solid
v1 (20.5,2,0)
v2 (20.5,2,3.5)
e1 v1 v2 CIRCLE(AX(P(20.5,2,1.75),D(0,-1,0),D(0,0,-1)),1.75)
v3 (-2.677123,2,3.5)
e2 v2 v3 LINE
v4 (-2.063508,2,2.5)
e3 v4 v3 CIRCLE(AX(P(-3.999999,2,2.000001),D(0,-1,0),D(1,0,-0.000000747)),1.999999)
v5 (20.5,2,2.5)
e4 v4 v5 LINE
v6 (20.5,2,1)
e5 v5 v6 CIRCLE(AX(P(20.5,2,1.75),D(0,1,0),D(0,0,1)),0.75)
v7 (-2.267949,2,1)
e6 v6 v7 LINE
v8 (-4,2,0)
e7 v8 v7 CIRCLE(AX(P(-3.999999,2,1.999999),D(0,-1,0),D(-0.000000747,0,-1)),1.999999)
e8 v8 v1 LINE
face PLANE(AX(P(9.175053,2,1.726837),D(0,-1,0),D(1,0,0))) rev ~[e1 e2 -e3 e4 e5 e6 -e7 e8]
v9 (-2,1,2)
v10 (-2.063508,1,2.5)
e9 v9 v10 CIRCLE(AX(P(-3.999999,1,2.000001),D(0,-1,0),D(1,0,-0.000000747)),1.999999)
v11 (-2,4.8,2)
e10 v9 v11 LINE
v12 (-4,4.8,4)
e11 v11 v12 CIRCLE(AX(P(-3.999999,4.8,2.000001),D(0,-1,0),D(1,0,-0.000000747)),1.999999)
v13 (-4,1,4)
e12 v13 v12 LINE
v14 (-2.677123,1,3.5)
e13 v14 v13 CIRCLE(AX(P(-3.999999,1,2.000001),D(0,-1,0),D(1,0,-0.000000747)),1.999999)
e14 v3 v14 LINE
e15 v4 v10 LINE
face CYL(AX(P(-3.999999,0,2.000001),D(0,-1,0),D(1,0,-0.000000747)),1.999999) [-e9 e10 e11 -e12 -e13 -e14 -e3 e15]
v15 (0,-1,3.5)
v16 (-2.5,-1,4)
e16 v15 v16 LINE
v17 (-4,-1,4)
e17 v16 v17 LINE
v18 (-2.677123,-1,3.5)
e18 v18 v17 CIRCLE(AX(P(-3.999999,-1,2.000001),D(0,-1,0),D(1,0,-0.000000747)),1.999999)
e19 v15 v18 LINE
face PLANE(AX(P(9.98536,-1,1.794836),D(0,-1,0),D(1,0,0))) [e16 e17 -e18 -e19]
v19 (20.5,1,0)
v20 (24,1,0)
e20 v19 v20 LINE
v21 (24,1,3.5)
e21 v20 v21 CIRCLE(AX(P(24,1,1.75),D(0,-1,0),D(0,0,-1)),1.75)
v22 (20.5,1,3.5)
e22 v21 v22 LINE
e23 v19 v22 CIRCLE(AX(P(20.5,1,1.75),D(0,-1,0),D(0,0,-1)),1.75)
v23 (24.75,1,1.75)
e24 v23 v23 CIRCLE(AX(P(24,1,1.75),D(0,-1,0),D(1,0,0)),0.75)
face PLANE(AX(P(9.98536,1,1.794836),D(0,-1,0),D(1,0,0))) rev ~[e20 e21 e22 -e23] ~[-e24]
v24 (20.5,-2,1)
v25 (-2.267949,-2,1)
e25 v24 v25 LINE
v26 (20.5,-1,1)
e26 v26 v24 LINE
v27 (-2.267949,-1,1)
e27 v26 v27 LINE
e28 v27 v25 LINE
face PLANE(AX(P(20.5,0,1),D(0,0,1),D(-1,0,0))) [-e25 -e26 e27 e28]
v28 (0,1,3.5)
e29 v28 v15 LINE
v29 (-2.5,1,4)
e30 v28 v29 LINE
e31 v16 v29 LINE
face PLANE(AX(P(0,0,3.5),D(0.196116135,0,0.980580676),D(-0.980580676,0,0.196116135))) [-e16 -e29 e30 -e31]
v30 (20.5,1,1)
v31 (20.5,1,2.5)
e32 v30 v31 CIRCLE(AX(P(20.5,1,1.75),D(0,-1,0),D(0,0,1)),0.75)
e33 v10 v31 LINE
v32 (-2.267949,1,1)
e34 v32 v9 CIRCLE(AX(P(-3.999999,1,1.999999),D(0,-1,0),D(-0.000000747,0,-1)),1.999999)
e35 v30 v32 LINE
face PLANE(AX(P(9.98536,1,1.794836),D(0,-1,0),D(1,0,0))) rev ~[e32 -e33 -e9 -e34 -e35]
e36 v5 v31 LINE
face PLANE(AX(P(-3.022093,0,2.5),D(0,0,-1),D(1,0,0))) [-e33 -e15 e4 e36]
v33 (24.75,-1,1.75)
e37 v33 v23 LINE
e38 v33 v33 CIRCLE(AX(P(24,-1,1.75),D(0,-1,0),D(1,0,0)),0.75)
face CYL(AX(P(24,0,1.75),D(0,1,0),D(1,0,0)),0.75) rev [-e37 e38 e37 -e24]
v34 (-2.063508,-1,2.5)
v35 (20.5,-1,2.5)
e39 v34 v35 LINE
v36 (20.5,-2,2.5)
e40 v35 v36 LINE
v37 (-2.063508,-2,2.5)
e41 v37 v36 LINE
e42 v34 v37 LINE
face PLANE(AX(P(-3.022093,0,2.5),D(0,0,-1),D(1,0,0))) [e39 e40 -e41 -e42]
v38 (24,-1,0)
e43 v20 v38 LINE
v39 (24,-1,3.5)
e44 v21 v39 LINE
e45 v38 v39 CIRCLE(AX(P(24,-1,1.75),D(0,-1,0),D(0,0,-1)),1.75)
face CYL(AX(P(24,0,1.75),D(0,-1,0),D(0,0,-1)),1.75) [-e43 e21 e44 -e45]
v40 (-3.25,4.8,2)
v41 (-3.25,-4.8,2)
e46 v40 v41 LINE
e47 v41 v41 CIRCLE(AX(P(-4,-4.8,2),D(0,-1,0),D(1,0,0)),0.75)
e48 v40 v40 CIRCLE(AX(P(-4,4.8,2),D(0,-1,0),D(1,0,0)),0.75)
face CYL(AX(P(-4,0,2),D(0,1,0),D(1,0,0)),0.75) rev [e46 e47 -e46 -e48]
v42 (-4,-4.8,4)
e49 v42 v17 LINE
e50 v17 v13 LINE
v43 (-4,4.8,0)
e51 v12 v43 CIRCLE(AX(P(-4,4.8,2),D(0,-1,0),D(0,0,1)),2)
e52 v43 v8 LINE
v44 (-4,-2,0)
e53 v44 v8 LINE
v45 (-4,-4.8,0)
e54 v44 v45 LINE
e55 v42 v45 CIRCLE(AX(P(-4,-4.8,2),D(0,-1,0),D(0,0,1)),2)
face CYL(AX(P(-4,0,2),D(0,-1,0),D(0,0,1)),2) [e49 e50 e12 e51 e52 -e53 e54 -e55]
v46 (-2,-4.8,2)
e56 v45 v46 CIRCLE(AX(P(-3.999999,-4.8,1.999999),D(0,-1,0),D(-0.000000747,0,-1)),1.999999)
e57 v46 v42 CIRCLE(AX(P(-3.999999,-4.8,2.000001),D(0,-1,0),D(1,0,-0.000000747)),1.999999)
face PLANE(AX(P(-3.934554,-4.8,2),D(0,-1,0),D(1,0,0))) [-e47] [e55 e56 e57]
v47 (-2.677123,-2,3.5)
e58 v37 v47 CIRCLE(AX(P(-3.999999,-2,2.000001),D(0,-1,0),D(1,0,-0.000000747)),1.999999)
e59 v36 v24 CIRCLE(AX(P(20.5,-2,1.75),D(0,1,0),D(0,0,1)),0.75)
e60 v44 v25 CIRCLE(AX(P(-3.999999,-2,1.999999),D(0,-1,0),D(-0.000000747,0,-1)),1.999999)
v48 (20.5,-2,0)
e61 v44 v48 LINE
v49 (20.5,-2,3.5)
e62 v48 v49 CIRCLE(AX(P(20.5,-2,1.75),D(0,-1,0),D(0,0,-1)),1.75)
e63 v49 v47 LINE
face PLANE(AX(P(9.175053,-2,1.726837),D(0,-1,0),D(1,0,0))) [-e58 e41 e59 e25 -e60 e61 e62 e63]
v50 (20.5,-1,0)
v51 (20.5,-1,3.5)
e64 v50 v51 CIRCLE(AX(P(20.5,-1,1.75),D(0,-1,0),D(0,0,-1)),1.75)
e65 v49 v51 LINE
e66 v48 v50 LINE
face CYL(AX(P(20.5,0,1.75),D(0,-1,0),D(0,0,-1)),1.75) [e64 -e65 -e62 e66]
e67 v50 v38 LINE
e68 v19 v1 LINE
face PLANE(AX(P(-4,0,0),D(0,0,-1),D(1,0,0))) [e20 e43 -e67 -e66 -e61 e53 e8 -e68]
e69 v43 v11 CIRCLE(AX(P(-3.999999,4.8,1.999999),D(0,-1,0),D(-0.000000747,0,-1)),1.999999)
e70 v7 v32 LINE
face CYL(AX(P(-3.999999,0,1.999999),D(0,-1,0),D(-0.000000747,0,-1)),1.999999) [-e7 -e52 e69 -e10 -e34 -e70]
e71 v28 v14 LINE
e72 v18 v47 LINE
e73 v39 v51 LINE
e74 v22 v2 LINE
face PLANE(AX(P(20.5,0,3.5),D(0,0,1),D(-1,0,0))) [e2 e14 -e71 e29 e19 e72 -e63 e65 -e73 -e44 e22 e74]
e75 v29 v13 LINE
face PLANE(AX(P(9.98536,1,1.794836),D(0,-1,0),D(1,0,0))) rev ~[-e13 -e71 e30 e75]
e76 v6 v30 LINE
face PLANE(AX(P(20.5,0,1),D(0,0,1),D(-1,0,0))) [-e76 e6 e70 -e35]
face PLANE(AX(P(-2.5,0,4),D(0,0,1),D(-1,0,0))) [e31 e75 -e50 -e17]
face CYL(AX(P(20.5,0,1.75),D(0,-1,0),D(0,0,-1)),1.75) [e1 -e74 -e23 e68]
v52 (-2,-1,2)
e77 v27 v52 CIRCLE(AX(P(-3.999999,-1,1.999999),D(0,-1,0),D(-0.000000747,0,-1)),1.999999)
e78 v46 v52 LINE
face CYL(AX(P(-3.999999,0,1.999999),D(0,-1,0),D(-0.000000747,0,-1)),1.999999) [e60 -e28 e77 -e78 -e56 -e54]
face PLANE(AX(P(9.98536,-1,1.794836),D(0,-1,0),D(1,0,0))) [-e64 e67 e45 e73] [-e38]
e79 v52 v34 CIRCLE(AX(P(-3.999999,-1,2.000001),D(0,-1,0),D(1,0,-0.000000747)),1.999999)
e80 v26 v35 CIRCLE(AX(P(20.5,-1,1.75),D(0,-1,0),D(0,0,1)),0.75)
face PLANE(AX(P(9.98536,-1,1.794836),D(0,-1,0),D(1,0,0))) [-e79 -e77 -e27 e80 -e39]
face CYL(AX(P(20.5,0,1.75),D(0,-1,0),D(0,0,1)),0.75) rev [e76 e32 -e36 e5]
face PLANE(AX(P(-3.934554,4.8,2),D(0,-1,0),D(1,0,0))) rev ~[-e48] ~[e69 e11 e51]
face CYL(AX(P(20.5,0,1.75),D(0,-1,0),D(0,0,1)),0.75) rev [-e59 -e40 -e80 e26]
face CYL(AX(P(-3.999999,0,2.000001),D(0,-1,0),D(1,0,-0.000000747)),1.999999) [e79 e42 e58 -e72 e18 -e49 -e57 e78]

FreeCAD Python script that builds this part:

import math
import FreeCAD as App
import Part
import Sketcher

V = App.Vector

doc = App.newDocument("Part")
body = doc.addObject("PartDesign::Body", "Body")

sketch1 = body.newObject("Sketcher::SketchObject", "Sketch")
sketch1.AttachmentSupport = (doc.getObject("XZ_Plane"), [""])
sketch1.MapMode = "FlatFace"
sketch1.addGeometry([
    Part.LineSegment(V(-4, 0, 0), V(24, 0, 0)),
    Part.ArcOfCircle(Part.Circle(V(24, 1.75, 0), V(0, 0, 1), 1.75), math.radians(-90), math.radians(90)),
    Part.LineSegment(V(24, 3.5, 0), V(0, 3.5, 0)),
    Part.LineSegment(V(0, 3.5, 0), V(-2.5, 4, 0)),
    Part.LineSegment(V(-2.5, 4, 0), V(-4, 4, 0)),
    Part.ArcOfCircle(Part.Circle(V(-4, 2, 0), V(0, 0, 1), 2), math.radians(90), math.radians(270)),
    Part.Circle(V(24, 1.75, 0), V(0, 0, 1), 0.75),
    Part.Circle(V(-4, 2, 0), V(0, 0, 1), 0.75),
], False)
sketch1.addConstraint([
    Sketcher.Constraint("Tangent", 0, 2, 1, 1),
    Sketcher.Constraint("Tangent", 1, 2, 2, 1),
    Sketcher.Constraint("Coincident", 2, 2, 3, 1),
    Sketcher.Constraint("Coincident", 3, 2, 4, 1),
    Sketcher.Constraint("Tangent", 4, 2, 5, 1),
    Sketcher.Constraint("Tangent", 5, 2, 0, 1),
    Sketcher.Constraint("Horizontal", 0),
    Sketcher.Constraint("Horizontal", 2),
    Sketcher.Constraint("Horizontal", 4),
    Sketcher.Constraint("Coincident", 6, 3, 1, 3),
    Sketcher.Constraint("Coincident", 7, 3, 5, 3),
    Sketcher.Constraint("Equal", 6, 7),
    Sketcher.Constraint("PointOnObject", 0, 2, -1),
    Sketcher.Constraint("PointOnObject", 2, 2, -2),
    Sketcher.Constraint("Radius", 5, 2.0),
    Sketcher.Constraint("Diameter", 6, 1.5),
    Sketcher.Constraint("DistanceX", 0, 1, 0, 2, 28.0),
    Sketcher.Constraint("DistanceX", 2, 2, 2, 1, 24.0),
    Sketcher.Constraint("Radius", 1, 1.75),
    Sketcher.Constraint("DistanceX", 4, 2, 4, 1, 1.5),
])
pad1 = body.newObject("PartDesign::Pad", "Pad")
pad1.Profile = sketch1
pad1.Length = 2
pad1.Midplane = True

sketch2 = body.newObject("Sketcher::SketchObject", "Sketch001")
sketch2.AttachmentSupport = (doc.getObject("XZ_Plane"), [""])
sketch2.MapMode = "FlatFace"
sketch2.addGeometry([
    Part.ArcOfCircle(Part.Circle(V(-4, 2, 0), V(0, 0, 1), 2), math.radians(90), math.radians(270)),
    Part.ArcOfCircle(Part.Circle(V(-3.999999, 1.999999, 0), V(0, 0, 1), 1.999999), math.radians(-90.000043), math.radians(0.000043)),
    Part.ArcOfCircle(Part.Circle(V(-3.999999, 2.000001, 0), V(0, 0, 1), 1.999999), math.radians(-0.000043), math.radians(90.000043)),
    Part.Circle(V(-4, 2, 0), V(0, 0, 1), 0.75),
], False)
sketch2.addConstraint([
    Sketcher.Constraint("Tangent", 0, 2, 1, 1),
    Sketcher.Constraint("Tangent", 1, 2, 2, 1),
    Sketcher.Constraint("Tangent", 2, 2, 0, 1),
    Sketcher.Constraint("Coincident", 3, 3, 0, 3),
    Sketcher.Constraint("PointOnObject", 0, 2, -1),
    Sketcher.Constraint("Horizontal", 3, 3, 1, 2),
    Sketcher.Constraint("Vertical", 3, 3, 0, 2),
    Sketcher.Constraint("Vertical", 0, 2, 2, 2),
    Sketcher.Constraint("Radius", 0, 2.0),
    Sketcher.Constraint("Diameter", 3, 1.5),
    Sketcher.Constraint("DistanceX", 0, 3, -1, 1, 4.0),
])
pad2 = body.newObject("PartDesign::Pad", "Pad001")
pad2.Profile = sketch2
pad2.Length = 9.6
pad2.Midplane = True

sketch3 = body.newObject("Sketcher::SketchObject", "Sketch002")
sketch3.AttachmentSupport = (doc.getObject("XZ_Plane"), [""])
sketch3.MapMode = "FlatFace"
sketch3.addGeometry([
    Part.LineSegment(V(20.5, 3.5, 0), V(-3.022093, 3.5, 0)),
    Part.LineSegment(V(-3.022093, 3.5, 0), V(-3.022093, 2.5, 0)),
    Part.LineSegment(V(-3.022093, 2.5, 0), V(20.5, 2.5, 0)),
    Part.ArcOfCircle(Part.Circle(V(20.5, 1.75, 0), V(0, 0, 1), 0.75), math.radians(-90), math.radians(90)),
    Part.LineSegment(V(20.5, 1, 0), V(-4, 1, 0)),
    Part.LineSegment(V(-4, 1, 0), V(-4, 0, 0)),
    Part.LineSegment(V(-4, 0, 0), V(20.5, 0, 0)),
    Part.ArcOfCircle(Part.Circle(V(20.5, 1.75, 0), V(0, 0, 1), 1.75), math.radians(-90), math.radians(90)),
], False)
sketch3.addConstraint([
    Sketcher.Constraint("Coincident", 0, 2, 1, 1),
    Sketcher.Constraint("Coincident", 1, 2, 2, 1),
    Sketcher.Constraint("Tangent", 2, 2, 3, 2),
    Sketcher.Constraint("Tangent", 3, 1, 4, 1),
    Sketcher.Constraint("Coincident", 4, 2, 5, 1),
    Sketcher.Constraint("Coincident", 5, 2, 6, 1),
    Sketcher.Constraint("Tangent", 6, 2, 7, 1),
    Sketcher.Constraint("Tangent", 7, 2, 0, 1),
    Sketcher.Constraint("Horizontal", 0),
    Sketcher.Constraint("Vertical", 1),
    Sketcher.Constraint("Horizontal", 2),
    Sketcher.Constraint("Horizontal", 4),
    Sketcher.Constraint("Vertical", 5),
    Sketcher.Constraint("Horizontal", 6),
    Sketcher.Constraint("Coincident", 7, 3, 3, 3),
    Sketcher.Constraint("PointOnObject", 5, 2, -1),
    Sketcher.Constraint("DistanceY", 1, 2, 1, 1, 1.0),
    Sketcher.Constraint("Radius", 3, 0.75),
    Sketcher.Constraint("DistanceX", 4, 2, 4, 1, 24.5),
    Sketcher.Constraint("DistanceX", 4, 2, -1, 1, 4.0),
    Sketcher.Constraint("DistanceX", 0, 2, 0, 1, 23.522093),
])
pad3 = body.newObject("PartDesign::Pad", "Pad002")
pad3.Profile = sketch3
pad3.Length = 4
pad3.Midplane = True

doc.recompute()
